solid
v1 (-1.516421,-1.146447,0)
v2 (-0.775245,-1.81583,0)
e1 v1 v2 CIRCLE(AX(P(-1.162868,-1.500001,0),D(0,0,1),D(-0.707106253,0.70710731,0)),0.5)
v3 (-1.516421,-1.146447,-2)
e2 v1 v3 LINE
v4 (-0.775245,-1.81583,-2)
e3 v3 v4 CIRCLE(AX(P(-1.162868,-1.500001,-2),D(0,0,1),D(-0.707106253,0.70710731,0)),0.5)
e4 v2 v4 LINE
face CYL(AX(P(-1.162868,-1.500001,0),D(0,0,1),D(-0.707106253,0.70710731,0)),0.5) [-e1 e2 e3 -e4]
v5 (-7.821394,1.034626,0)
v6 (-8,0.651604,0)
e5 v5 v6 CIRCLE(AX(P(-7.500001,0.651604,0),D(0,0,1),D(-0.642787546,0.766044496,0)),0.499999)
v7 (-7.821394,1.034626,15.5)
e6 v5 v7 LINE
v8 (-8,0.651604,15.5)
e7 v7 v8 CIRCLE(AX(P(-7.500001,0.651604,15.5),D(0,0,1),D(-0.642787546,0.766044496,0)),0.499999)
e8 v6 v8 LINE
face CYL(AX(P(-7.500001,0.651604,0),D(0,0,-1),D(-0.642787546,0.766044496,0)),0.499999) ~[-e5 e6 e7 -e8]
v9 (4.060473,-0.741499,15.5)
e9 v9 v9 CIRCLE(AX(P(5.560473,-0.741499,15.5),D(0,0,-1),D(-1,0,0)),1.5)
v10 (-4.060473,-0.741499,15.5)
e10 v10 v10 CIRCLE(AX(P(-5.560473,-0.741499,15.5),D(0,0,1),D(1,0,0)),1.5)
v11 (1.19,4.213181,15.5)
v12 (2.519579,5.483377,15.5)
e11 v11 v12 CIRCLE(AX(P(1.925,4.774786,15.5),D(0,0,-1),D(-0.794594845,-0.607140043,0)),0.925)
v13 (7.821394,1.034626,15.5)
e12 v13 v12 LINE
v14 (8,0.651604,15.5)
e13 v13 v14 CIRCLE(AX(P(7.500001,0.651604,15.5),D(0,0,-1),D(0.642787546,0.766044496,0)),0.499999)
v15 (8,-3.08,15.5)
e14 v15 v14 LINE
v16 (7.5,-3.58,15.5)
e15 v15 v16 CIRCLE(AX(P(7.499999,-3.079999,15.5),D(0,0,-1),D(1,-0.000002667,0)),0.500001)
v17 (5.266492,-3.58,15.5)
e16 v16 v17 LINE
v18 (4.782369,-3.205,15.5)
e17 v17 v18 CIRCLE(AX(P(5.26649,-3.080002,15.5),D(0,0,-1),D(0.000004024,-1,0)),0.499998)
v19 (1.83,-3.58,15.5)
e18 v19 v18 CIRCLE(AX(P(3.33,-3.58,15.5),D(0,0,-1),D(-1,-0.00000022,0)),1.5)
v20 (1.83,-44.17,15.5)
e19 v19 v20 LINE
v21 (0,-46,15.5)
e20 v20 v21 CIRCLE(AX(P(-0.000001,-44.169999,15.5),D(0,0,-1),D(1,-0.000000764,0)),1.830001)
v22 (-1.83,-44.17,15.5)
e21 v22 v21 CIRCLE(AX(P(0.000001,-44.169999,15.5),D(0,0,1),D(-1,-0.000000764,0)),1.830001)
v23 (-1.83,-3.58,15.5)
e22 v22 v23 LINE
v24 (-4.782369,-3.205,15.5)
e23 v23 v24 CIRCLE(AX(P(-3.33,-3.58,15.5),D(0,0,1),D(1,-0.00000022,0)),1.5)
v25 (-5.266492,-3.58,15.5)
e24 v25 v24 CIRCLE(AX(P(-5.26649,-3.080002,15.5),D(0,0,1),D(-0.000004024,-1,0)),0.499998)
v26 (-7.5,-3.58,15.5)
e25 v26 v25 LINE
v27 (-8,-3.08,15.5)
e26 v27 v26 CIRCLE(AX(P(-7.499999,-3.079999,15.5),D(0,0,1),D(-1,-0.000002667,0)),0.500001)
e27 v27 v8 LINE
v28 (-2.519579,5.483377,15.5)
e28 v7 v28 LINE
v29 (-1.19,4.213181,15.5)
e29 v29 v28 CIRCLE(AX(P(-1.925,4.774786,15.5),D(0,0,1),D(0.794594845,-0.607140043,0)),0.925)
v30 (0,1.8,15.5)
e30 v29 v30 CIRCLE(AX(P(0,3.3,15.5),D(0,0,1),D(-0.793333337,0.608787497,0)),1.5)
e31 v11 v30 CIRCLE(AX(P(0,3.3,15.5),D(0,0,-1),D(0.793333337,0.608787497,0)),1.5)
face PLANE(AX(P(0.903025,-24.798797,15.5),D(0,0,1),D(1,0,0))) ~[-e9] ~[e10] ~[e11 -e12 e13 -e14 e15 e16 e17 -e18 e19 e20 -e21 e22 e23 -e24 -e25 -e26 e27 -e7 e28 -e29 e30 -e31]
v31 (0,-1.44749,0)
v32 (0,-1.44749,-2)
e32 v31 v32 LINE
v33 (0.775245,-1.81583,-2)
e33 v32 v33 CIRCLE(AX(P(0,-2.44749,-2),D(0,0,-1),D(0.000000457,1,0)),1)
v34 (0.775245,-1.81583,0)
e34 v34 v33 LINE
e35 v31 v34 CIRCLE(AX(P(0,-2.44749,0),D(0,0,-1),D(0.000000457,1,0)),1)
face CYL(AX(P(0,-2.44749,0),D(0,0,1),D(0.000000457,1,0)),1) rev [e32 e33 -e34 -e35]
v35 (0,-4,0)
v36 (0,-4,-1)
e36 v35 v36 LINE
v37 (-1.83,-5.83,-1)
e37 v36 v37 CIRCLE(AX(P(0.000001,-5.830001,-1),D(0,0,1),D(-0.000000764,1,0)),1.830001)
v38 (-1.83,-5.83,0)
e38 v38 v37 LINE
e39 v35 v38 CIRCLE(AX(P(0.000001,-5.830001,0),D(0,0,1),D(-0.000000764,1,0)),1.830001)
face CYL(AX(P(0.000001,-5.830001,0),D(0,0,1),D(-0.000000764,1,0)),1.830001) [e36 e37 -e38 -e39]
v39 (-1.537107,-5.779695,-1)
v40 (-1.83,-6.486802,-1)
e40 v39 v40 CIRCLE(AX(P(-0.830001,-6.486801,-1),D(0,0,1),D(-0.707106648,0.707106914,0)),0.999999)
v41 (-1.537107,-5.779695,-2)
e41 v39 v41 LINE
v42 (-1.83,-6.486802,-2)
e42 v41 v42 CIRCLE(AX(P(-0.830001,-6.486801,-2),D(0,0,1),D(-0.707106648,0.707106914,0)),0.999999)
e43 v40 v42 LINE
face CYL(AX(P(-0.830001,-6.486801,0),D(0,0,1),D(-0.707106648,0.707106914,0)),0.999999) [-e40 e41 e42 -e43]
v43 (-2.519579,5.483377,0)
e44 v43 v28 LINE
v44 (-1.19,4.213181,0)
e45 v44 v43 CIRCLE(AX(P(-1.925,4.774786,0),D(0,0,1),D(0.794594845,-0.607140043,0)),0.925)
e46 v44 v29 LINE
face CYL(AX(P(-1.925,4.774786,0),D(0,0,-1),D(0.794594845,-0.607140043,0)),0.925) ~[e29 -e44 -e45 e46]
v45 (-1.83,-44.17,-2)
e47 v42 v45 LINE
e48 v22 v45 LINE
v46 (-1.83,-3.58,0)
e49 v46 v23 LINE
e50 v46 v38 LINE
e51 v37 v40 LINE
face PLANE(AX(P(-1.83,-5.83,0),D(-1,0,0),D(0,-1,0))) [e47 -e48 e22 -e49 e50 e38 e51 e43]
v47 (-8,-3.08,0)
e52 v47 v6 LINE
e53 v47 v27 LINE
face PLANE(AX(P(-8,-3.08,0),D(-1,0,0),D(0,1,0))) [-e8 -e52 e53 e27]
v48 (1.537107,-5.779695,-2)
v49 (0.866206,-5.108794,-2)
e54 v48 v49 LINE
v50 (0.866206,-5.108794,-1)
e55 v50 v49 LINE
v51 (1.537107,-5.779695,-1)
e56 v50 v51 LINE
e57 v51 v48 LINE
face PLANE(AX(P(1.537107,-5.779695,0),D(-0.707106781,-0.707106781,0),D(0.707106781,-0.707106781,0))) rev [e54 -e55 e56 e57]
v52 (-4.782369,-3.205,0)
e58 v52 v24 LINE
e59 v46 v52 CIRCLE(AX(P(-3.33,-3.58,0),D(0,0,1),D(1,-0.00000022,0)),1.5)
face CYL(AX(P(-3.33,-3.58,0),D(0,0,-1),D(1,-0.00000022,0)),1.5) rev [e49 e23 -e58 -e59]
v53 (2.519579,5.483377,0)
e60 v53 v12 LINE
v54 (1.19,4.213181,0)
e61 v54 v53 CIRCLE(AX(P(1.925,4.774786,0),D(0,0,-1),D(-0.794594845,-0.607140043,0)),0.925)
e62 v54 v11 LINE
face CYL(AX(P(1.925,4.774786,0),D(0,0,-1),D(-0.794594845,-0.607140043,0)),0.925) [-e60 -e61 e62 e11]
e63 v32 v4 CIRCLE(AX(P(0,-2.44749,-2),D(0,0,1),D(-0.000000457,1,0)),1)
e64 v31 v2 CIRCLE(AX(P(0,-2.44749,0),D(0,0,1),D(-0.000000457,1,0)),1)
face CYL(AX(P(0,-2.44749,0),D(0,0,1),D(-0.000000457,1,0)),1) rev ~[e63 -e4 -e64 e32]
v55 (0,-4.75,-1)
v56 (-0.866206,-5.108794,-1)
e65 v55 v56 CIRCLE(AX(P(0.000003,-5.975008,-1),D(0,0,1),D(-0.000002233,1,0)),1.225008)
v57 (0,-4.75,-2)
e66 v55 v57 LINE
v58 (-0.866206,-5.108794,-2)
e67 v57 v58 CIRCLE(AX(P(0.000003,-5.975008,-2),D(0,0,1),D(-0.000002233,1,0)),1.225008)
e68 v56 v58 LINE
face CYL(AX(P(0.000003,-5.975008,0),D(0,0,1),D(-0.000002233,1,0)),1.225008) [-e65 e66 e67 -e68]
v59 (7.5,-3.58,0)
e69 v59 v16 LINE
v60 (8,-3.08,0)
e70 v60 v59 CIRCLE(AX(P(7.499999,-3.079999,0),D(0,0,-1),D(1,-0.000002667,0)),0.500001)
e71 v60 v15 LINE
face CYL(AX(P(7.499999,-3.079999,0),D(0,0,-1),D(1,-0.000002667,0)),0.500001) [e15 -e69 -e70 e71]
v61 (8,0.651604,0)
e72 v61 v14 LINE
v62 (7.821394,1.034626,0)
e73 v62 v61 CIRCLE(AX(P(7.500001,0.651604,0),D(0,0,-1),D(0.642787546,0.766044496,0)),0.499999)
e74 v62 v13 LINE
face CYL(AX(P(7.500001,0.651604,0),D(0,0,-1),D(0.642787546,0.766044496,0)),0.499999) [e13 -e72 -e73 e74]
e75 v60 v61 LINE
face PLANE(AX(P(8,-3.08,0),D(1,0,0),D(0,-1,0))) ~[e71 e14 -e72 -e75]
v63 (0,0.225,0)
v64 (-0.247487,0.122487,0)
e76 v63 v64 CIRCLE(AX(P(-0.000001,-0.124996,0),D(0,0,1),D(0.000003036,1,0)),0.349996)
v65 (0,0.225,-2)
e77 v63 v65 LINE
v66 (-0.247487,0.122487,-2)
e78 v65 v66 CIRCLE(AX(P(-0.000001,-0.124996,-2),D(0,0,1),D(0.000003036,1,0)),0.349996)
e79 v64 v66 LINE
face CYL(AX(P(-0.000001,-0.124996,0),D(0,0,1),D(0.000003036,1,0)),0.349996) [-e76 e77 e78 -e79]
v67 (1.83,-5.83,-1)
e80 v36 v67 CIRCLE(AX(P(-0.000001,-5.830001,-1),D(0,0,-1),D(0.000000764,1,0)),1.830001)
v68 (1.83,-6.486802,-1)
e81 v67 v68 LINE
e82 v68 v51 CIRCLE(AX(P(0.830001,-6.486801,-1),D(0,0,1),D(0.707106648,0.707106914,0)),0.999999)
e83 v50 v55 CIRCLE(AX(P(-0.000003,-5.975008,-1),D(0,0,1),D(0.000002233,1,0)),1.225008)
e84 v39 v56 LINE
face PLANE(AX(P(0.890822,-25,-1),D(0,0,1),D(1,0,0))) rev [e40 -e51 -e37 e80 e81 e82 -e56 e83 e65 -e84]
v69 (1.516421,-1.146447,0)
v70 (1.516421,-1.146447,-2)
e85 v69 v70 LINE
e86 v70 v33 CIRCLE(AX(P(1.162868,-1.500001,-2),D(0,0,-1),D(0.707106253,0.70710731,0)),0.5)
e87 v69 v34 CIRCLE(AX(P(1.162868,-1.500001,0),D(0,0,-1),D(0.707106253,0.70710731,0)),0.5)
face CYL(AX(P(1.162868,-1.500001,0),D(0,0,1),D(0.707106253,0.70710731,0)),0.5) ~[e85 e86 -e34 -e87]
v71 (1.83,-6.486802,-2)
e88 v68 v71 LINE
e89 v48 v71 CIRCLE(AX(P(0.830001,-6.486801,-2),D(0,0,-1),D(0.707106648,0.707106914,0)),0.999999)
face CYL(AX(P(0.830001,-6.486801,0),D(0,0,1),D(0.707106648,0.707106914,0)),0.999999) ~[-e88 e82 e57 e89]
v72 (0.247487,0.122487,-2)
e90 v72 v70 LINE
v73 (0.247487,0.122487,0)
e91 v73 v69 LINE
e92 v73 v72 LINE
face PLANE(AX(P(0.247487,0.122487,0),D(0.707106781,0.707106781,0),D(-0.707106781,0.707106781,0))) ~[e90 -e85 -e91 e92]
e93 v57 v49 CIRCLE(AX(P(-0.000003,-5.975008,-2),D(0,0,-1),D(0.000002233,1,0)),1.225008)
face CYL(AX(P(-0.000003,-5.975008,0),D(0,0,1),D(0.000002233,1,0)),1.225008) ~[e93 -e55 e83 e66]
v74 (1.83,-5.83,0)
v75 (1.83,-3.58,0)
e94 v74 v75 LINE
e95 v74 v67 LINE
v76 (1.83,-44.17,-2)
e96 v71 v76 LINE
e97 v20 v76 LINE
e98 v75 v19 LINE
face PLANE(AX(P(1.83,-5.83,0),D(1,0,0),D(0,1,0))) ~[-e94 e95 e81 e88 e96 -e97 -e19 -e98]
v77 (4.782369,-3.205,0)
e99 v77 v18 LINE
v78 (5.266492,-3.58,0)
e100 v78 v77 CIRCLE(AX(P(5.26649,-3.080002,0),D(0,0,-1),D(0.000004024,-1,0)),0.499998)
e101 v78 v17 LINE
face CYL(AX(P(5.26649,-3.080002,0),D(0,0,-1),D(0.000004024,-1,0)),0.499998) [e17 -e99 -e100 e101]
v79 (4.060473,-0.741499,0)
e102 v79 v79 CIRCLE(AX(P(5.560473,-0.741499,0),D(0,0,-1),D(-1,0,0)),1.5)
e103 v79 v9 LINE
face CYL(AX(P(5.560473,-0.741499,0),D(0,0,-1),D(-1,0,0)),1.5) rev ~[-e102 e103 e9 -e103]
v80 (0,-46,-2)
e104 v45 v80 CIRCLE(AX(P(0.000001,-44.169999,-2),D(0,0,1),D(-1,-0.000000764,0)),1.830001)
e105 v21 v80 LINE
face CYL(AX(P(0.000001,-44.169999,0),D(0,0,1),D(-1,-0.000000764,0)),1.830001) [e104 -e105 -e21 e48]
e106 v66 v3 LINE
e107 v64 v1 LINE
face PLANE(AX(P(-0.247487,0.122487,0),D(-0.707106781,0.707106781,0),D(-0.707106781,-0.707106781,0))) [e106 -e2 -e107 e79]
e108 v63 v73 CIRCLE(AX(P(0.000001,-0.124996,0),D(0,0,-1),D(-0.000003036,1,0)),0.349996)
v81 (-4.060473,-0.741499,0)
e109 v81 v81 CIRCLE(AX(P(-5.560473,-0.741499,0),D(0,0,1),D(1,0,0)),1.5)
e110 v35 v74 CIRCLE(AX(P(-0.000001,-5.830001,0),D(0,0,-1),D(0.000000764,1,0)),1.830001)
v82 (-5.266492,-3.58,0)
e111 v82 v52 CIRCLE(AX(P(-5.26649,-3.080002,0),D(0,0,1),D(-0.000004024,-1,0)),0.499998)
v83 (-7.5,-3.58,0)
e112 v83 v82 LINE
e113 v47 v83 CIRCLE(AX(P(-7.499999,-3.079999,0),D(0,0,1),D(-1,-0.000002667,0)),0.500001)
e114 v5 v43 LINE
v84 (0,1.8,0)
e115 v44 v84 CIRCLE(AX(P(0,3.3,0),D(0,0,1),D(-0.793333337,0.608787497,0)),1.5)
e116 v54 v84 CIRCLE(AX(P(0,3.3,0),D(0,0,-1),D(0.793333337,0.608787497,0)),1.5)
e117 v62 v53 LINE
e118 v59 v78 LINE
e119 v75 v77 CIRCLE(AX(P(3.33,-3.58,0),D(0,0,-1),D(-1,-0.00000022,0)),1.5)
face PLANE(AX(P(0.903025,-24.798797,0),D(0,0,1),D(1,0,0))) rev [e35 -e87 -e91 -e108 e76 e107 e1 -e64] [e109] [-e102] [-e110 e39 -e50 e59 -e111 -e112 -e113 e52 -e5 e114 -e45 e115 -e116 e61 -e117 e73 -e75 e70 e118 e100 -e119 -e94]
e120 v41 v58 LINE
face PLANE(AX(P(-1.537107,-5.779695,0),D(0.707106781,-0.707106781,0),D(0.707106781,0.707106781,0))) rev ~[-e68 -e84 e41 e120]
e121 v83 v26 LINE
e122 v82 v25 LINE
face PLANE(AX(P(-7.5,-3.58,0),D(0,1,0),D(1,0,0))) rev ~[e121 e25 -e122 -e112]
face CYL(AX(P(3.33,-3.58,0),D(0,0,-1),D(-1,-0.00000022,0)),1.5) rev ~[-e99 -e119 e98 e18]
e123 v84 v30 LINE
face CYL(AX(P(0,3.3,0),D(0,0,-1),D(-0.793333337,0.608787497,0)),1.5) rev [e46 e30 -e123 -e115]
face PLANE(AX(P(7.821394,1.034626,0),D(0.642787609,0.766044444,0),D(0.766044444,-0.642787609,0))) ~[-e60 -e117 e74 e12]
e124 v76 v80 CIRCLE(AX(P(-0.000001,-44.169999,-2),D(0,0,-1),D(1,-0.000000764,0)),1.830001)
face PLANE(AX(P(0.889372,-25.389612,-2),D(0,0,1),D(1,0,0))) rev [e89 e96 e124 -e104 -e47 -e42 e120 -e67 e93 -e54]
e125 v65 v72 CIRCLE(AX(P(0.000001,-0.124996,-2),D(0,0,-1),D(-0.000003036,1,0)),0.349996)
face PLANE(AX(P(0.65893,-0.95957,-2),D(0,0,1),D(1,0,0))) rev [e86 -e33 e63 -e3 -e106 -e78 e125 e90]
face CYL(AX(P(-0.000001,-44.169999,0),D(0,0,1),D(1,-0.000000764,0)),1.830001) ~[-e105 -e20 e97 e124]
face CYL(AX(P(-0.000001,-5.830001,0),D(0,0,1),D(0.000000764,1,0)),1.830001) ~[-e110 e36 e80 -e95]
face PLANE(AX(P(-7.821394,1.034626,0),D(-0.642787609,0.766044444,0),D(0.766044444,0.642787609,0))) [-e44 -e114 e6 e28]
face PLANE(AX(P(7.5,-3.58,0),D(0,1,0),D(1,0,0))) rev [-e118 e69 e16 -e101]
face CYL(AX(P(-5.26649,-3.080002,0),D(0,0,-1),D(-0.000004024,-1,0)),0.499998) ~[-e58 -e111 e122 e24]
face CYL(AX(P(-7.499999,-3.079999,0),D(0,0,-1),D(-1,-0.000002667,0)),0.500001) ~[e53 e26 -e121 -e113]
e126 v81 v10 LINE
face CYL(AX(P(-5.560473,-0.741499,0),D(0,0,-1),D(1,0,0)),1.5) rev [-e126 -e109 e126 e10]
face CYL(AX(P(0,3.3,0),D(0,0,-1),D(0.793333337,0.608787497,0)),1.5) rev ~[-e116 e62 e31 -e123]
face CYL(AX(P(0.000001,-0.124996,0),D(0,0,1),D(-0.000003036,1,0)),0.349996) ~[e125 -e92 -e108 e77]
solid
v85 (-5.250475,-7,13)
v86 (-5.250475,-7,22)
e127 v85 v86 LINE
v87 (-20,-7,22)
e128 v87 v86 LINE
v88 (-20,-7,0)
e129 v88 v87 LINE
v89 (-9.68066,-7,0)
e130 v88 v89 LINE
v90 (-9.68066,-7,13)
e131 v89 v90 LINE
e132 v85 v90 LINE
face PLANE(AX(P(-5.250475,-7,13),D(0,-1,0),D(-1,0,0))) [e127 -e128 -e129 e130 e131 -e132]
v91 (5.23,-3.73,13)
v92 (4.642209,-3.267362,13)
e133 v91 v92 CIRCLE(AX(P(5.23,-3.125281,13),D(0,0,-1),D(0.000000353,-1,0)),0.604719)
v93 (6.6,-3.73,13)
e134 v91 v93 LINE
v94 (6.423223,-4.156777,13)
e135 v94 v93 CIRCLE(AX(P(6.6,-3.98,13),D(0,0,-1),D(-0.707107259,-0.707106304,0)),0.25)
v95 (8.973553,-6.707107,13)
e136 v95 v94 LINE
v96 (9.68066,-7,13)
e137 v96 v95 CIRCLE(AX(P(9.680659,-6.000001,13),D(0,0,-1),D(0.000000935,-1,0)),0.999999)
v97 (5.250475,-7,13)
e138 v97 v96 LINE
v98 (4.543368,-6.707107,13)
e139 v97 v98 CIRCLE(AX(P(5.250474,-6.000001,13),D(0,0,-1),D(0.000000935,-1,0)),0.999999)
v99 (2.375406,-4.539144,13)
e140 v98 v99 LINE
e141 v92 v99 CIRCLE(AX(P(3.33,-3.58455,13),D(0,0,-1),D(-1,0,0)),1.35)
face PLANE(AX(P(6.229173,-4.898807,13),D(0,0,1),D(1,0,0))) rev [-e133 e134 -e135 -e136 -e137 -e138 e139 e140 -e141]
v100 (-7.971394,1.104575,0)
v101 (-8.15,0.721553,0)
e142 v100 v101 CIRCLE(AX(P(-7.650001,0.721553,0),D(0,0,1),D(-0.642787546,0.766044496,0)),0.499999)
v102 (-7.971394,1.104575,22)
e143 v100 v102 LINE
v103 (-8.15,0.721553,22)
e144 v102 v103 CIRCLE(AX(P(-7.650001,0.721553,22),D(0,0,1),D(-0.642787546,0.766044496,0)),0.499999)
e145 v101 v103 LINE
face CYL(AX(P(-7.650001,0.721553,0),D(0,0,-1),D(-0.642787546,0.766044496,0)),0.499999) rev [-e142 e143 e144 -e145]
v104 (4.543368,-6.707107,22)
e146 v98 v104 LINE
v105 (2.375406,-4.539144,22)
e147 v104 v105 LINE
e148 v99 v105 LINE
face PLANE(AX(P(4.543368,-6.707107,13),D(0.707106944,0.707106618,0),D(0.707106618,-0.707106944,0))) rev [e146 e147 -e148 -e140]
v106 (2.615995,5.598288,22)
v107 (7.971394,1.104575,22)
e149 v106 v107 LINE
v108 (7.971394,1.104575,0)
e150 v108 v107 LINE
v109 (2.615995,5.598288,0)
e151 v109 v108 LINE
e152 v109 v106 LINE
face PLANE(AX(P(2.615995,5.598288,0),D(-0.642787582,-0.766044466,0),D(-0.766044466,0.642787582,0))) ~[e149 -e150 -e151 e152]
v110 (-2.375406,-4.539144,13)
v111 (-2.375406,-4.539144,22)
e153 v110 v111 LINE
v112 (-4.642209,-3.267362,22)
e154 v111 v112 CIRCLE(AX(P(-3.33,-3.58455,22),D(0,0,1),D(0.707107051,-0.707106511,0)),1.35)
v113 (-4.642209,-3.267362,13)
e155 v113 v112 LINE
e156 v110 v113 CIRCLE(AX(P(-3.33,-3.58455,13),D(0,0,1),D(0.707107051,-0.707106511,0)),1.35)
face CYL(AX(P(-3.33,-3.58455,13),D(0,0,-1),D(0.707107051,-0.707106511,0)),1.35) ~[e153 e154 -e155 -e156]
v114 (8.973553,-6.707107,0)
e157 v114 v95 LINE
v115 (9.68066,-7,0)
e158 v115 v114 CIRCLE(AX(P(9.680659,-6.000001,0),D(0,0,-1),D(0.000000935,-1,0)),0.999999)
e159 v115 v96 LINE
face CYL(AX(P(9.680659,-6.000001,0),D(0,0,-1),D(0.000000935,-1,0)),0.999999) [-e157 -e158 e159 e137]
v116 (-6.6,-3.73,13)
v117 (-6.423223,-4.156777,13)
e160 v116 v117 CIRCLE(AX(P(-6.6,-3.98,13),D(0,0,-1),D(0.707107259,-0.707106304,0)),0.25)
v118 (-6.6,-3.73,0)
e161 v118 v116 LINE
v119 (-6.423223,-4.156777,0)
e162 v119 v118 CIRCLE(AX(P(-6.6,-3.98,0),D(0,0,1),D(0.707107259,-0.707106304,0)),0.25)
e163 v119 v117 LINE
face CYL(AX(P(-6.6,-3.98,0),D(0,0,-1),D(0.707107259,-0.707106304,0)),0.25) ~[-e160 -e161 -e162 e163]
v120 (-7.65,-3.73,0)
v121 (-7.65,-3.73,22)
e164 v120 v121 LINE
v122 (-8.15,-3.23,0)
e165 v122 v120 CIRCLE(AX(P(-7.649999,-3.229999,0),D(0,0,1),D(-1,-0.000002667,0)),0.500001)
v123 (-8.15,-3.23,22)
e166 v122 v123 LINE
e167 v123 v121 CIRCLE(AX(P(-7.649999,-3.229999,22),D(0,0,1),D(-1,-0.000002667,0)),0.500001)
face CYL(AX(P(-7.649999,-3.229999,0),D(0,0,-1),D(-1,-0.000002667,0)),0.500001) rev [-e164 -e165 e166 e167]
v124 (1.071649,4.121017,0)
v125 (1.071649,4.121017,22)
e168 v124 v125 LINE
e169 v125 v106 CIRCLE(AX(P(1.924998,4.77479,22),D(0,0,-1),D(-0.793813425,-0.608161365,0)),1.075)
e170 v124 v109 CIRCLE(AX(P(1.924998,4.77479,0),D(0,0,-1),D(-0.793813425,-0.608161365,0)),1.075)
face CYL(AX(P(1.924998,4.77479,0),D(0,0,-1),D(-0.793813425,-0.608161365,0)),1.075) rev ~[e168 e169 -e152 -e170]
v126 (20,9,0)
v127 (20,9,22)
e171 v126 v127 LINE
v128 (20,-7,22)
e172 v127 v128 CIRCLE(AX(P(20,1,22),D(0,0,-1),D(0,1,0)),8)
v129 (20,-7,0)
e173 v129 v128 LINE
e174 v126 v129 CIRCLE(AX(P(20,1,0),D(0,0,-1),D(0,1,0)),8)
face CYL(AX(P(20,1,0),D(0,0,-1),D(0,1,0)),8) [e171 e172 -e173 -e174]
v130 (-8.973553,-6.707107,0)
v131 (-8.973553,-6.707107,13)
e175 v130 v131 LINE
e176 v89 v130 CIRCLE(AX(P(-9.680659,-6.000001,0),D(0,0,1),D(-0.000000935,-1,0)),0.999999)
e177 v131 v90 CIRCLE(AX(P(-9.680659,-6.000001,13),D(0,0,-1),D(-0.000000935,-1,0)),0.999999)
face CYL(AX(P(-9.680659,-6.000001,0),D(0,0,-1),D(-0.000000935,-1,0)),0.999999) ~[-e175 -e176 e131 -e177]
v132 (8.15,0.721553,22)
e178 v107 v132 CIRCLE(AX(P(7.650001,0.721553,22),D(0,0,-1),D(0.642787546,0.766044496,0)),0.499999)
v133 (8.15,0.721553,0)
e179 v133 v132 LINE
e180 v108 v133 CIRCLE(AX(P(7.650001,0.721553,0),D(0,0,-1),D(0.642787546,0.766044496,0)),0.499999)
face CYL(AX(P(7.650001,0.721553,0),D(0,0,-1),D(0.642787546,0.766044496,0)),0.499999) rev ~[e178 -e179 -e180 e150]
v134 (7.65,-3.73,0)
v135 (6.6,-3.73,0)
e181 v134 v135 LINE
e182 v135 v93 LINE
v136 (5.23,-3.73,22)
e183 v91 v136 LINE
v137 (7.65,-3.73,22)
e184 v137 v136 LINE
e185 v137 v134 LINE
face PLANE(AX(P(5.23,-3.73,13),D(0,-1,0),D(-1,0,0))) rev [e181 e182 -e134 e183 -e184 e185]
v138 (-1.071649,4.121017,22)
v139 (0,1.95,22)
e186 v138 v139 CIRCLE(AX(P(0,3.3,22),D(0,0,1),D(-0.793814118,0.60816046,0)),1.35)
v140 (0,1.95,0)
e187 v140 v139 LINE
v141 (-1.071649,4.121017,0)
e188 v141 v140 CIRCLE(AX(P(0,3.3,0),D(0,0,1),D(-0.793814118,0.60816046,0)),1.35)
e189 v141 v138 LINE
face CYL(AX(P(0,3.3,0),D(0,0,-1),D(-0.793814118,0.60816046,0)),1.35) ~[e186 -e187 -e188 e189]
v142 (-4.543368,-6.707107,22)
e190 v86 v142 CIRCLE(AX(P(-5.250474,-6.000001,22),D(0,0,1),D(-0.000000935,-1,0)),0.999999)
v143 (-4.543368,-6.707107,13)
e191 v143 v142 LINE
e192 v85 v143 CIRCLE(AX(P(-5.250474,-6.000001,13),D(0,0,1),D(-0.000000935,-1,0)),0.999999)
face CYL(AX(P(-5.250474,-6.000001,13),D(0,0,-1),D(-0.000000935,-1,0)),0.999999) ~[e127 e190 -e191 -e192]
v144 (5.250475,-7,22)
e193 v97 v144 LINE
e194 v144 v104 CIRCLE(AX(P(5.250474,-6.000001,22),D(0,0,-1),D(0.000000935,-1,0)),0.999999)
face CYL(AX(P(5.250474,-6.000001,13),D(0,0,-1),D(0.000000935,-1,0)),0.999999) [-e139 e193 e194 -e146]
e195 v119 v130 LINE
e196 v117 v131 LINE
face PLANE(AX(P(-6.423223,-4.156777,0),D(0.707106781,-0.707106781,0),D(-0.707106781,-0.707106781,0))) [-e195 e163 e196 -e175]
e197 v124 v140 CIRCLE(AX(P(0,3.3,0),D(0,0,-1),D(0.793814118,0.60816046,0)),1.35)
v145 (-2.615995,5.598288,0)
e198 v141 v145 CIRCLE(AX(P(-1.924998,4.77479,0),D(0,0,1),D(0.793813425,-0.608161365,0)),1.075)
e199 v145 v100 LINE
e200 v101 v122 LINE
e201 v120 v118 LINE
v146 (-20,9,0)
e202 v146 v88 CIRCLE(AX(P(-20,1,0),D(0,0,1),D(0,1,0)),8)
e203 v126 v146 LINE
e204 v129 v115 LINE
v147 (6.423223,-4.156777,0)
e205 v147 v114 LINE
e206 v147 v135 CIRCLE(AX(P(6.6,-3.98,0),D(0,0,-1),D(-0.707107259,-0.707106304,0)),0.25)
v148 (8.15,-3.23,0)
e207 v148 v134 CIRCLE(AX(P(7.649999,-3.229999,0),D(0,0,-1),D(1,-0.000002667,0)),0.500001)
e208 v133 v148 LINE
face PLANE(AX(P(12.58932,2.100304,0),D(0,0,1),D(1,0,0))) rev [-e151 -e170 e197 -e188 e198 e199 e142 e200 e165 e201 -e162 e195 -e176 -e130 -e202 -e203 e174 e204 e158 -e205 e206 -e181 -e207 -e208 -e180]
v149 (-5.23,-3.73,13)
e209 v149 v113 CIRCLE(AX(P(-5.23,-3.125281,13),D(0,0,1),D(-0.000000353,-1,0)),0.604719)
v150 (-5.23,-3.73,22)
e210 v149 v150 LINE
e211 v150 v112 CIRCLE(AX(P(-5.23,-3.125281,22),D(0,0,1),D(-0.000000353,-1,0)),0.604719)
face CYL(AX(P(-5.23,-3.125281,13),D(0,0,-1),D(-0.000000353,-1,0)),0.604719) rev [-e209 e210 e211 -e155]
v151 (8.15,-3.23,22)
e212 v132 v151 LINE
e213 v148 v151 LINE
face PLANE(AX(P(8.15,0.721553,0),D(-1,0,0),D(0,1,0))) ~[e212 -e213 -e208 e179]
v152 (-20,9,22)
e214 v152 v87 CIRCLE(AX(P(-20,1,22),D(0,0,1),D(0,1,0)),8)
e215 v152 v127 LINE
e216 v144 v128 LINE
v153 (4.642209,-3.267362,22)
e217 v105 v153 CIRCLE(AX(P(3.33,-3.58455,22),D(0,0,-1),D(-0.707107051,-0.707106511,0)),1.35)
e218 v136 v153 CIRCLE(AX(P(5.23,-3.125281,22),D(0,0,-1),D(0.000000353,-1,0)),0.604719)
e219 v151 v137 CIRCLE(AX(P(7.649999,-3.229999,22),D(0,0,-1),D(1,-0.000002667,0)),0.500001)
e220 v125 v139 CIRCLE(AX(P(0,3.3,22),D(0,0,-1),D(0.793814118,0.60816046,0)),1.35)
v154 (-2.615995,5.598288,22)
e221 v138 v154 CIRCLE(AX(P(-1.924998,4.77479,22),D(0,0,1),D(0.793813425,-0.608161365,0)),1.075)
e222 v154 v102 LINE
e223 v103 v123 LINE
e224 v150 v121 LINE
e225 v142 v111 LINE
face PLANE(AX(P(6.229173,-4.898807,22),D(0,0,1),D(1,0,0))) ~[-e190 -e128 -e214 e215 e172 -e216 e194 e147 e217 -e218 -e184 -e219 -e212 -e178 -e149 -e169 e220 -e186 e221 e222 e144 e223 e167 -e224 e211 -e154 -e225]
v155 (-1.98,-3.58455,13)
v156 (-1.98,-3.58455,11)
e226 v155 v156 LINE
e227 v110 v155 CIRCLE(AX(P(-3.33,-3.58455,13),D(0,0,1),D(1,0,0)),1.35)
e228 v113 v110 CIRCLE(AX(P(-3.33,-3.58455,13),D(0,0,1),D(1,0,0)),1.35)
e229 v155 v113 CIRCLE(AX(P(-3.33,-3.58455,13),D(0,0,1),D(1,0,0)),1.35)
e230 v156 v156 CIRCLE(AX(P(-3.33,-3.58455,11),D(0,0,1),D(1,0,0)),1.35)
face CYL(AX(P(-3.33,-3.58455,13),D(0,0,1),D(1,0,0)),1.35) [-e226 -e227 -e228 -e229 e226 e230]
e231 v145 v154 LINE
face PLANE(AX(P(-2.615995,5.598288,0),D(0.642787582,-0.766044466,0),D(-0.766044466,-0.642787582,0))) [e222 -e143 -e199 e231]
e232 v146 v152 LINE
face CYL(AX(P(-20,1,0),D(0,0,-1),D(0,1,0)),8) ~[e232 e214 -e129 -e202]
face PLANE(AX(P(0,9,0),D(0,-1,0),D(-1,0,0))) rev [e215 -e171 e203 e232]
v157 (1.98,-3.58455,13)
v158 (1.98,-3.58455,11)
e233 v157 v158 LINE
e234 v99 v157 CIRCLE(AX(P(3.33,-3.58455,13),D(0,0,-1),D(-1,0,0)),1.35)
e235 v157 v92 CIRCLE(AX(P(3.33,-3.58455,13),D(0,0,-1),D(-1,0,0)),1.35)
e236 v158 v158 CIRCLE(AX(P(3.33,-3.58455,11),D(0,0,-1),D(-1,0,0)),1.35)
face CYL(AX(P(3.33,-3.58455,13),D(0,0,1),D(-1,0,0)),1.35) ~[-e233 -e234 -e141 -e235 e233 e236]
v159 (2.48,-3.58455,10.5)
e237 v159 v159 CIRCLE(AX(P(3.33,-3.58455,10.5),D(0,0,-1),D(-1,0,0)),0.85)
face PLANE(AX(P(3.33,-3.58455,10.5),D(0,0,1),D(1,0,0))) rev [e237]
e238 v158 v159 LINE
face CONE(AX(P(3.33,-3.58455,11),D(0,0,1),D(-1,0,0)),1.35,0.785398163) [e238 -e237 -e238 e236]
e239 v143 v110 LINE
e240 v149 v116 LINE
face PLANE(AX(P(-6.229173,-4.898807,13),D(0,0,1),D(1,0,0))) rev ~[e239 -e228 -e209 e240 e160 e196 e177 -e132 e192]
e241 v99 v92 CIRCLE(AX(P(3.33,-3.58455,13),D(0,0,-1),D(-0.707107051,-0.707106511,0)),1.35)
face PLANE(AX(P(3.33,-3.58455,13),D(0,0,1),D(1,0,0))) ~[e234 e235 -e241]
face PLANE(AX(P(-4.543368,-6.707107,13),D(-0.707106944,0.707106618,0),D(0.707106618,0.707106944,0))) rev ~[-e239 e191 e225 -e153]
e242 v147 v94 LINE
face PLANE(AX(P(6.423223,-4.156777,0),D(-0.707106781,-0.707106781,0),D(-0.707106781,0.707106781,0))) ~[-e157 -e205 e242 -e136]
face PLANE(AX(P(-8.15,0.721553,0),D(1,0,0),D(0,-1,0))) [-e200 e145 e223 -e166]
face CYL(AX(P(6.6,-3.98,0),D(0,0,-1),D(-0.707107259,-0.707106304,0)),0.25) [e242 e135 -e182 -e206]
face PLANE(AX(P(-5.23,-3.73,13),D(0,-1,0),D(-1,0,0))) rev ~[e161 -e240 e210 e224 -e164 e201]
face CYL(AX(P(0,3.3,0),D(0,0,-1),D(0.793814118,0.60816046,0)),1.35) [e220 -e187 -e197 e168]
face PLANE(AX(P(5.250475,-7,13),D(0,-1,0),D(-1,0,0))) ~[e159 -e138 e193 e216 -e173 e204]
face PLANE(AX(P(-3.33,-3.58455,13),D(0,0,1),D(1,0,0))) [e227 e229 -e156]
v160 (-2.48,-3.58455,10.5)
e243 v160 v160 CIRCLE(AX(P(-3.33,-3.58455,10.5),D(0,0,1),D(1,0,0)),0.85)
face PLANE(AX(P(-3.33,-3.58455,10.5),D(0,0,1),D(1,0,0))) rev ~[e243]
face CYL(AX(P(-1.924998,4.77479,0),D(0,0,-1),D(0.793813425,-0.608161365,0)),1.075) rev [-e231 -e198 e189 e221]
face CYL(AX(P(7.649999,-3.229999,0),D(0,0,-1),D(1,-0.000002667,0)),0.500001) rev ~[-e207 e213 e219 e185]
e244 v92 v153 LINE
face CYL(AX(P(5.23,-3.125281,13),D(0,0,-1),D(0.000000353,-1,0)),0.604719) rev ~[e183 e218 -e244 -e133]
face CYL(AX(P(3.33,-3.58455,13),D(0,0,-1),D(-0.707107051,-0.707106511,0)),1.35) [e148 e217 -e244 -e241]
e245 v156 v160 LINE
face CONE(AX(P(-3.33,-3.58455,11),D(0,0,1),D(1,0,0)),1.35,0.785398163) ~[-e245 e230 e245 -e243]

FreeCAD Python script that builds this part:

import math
import FreeCAD as App
import Part
import Sketcher
from FreeCAD import Vector
Q = App.Units.Quantity


def edges_at(feature, points):
    """Names of the edges that pass closest to the given points."""
    edges = feature.Shape.Edges
    near = lambda p: min(range(len(edges)), key=lambda i: edges[i].distToShape(Part.Vertex(*p))[0])
    return sorted({f"Edge{near(p) + 1}" for p in points})

doc = App.newDocument("Part")
body = doc.addObject("PartDesign::Body", "Body")

sketch1 = body.newObject("Sketcher::SketchObject", "Sketch")
sketch1.AttachmentSupport = (doc.getObject("XY_Plane"), [""])
sketch1.MapMode = "FlatFace"
sketch1.addGeometry(Part.ArcOfCircle(Part.Circle(Vector(-3.33, -3.58, 0), Vector(0, 0, 1), 1.5), math.radians(0), math.radians(166)), False)
sketch1.addGeometry(Part.LineSegment(Vector(-1.83, -3.58, 0), Vector(-1.83, -4, 0)), False)
sketch1.addGeometry(Part.LineSegment(Vector(-1.83, -4, 0), Vector(0, -4, 0)), False)
sketch1.addGeometry(Part.LineSegment(Vector(0, -4, 0), Vector(0, 1.8, 0)), False)
sketch1.addGeometry(Part.ArcOfCircle(Part.Circle(Vector(0, 3.3, 0), Vector(0, 0, 1), 1.5), math.radians(142), math.radians(270)), False)
sketch1.addGeometry(Part.ArcOfCircle(Part.Circle(Vector(-1.93, 4.77, 0), Vector(0, 0, 1), 0.93), math.radians(-37), math.radians(130)), False)
sketch1.addGeometry(Part.LineSegment(Vector(-2.52, 5.48, 0), Vector(-7.82, 1.03, 0)), False)
sketch1.addGeometry(Part.ArcOfCircle(Part.Circle(Vector(-7.5, 0.65, 0), Vector(0, 0, 1), 0.5), math.radians(130), math.radians(180)), False)
sketch1.addGeometry(Part.LineSegment(Vector(-8, 0.65, 0), Vector(-8, -3.08, 0)), False)
sketch1.addGeometry(Part.ArcOfCircle(Part.Circle(Vector(-7.5, -3.08, 0), Vector(0, 0, 1), 0.5), math.radians(-180), math.radians(-90)), False)
sketch1.addGeometry(Part.LineSegment(Vector(-7.5, -3.58, 0), Vector(-5.27, -3.58, 0)), False)
sketch1.addGeometry(Part.ArcOfCircle(Part.Circle(Vector(-5.27, -3.08, 0), Vector(0, 0, 1), 0.5), math.radians(-90), math.radians(-14)), False)
sketch1.addGeometry(Part.Circle(Vector(-5.56, -0.74, 0), Vector(0, 0, 1), 1.5), False)
sketch1.addConstraint(Sketcher.Constraint("Tangent", 0, 1, 1, 1))
sketch1.addConstraint(Sketcher.Constraint("Coincident", 1, 2, 2, 1))
sketch1.addConstraint(Sketcher.Constraint("Coincident", 2, 2, 3, 1))
sketch1.addConstraint(Sketcher.Constraint("Coincident", 3, 2, 4, 2))
sketch1.addConstraint(Sketcher.Constraint("Coincident", 4, 1, 5, 1))
sketch1.addConstraint(Sketcher.Constraint("Tangent", 5, 2, 6, 1))
sketch1.addConstraint(Sketcher.Constraint("Tangent", 6, 2, 7, 1))
sketch1.addConstraint(Sketcher.Constraint("Tangent", 7, 2, 8, 1))
sketch1.addConstraint(Sketcher.Constraint("Coincident", 8, 2, 9, 1))
sketch1.addConstraint(Sketcher.Constraint("Coincident", 9, 2, 10, 1))
sketch1.addConstraint(Sketcher.Constraint("Coincident", 10, 2, 11, 1))
sketch1.addConstraint(Sketcher.Constraint("Coincident", 11, 2, 0, 2))
sketch1.addConstraint(Sketcher.Constraint("Vertical", 1))
sketch1.addConstraint(Sketcher.Constraint("Horizontal", 2))
sketch1.addConstraint(Sketcher.Constraint("Vertical", 3))
sketch1.addConstraint(Sketcher.Constraint("Vertical", 8))
sketch1.addConstraint(Sketcher.Constraint("Horizontal", 10))
sketch1.addConstraint(Sketcher.Constraint("Equal", 0, 4))
sketch1.addConstraint(Sketcher.Constraint("Equal", 7, 9))
sketch1.addConstraint(Sketcher.Constraint("Equal", 7, 11))
sketch1.addConstraint(Sketcher.Constraint("Equal", 4, 12))
sketch1.addConstraint(Sketcher.Constraint("PointOnObject", 4, 3, -2))
sketch1.addConstraint(Sketcher.Constraint("PointOnObject", 2, 2, -2))
sketch1.addConstraint(Sketcher.Constraint("Horizontal", 9, 3, 8, 2))
sketch1.addConstraint(Sketcher.Constraint("Horizontal", 0, 1, 9, 2))
sketch1.addConstraint(Sketcher.Constraint("Vertical", 7, 3, 9, 2))
sketch1.addConstraint(Sketcher.Constraint("Diameter", 12, Q("3 mm")))
sketch1.addConstraint(Sketcher.Constraint("Radius", 7, Q("0.499999 mm")))
sketch1.addConstraint(Sketcher.Constraint("Angle", 6, Q("-140 deg")))
sketch1.addConstraint(Sketcher.Constraint("DistanceY", 3, 1, 3, 2, Q("5.8 mm")))
sketch1.addConstraint(Sketcher.Constraint("DistanceY", 1, 2, -1, 1, Q("4 mm")))
sketch1.addConstraint(Sketcher.Constraint("DistanceX", 7, 2, -1, 1, Q("8 mm")))
sketch1.addConstraint(Sketcher.Constraint("Radius", 5, Q("0.925 mm")))
sketch1.addConstraint(Sketcher.Constraint("DistanceX", 2, 1, 2, 2, Q("1.83 mm")))
sketch1.addConstraint(Sketcher.Constraint("DistanceY", 1, 2, 1, 1, Q("0.42 mm")))
sketch1.addConstraint(Sketcher.Constraint("DistanceX", 4, 1, -1, 1, Q("1.19 mm")))
sketch1.addConstraint(Sketcher.Constraint("DistanceX", 5, 3, -1, 1, Q("1.925 mm")))
sketch1.addConstraint(Sketcher.Constraint("DistanceY", 11, 2, -1, 1, Q("3.205 mm")))
sketch1.addConstraint(Sketcher.Constraint("DistanceY", 12, 3, -1, 1, Q("0.741499 mm")))
sketch1.addConstraint(Sketcher.Constraint("DistanceX", 10, 1, 10, 2, Q("2.233508 mm")))
sketch1.addConstraint(Sketcher.Constraint("DistanceX", 6, 2, 12, 3, Q("2.260921 mm")))
pad1 = body.newObject("PartDesign::Pad", "Pad")
pad1.Profile = sketch1
pad1.Length = 15.5

sketch2 = body.newObject("Sketcher::SketchObject", "Sketch001")
sketch2.AttachmentSupport = (doc.getObject("XY_Plane"), [""])
sketch2.MapMode = "FlatFace"
sketch2.addGeometry(Part.ArcOfCircle(Part.Circle(Vector(0, -0.12, 0), Vector(0, 0, 1), 0.35), math.radians(90), math.radians(135)), False)
sketch2.addGeometry(Part.LineSegment(Vector(-0.25, 0.12, 0), Vector(-1.52, -1.15, 0)), False)
sketch2.addGeometry(Part.ArcOfCircle(Part.Circle(Vector(-1.16, -1.5, 0), Vector(0, 0, 1), 0.5), math.radians(135), math.radians(321)), False)
sketch2.addGeometry(Part.ArcOfCircle(Part.Circle(Vector(0, -2.45, 0), Vector(0, 0, 1), 1), math.radians(90), math.radians(141)), False)
sketch2.addGeometry(Part.LineSegment(Vector(0, -1.45, 0), Vector(0, 0.23, 0)), False)
sketch2.addConstraint(Sketcher.Constraint("Coincident", 0, 2, 1, 1))
sketch2.addConstraint(Sketcher.Constraint("Tangent", 1, 2, 2, 1))
sketch2.addConstraint(Sketcher.Constraint("Tangent", 2, 2, 3, 2))
sketch2.addConstraint(Sketcher.Constraint("Coincident", 3, 1, 4, 1))
sketch2.addConstraint(Sketcher.Constraint("Coincident", 4, 2, 0, 1))
sketch2.addConstraint(Sketcher.Constraint("Vertical", 4))
sketch2.addConstraint(Sketcher.Constraint("PointOnObject", 0, 3, -2))
sketch2.addConstraint(Sketcher.Constraint("PointOnObject", 3, 3, -2))
sketch2.addConstraint(Sketcher.Constraint("PointOnObject", 3, 1, -2))
sketch2.addConstraint(Sketcher.Constraint("Radius", 3, Q("1 mm")))
sketch2.addConstraint(Sketcher.Constraint("Radius", 2, Q("0.5 mm")))
sketch2.addConstraint(Sketcher.Constraint("Angle", 1, Q("-135 deg")))
sketch2.addConstraint(Sketcher.Constraint("DistanceY", 2, 3, -1, 1, Q("1.500001 mm")))
sketch2.addConstraint(Sketcher.Constraint("DistanceY", -1, 1, 4, 2, Q("0.225 mm")))
sketch2.addConstraint(Sketcher.Constraint("Radius", 0, Q("0.349996 mm")))
sketch2.addConstraint(Sketcher.Constraint("DistanceX", 2, 3, 0, 2, Q("0.915381 mm")))
pad2 = body.newObject("PartDesign::Pad", "Pad001")
pad2.Profile = sketch2
pad2.Length = 2
pad2.Reversed = True
doc.recompute()

mirrored = body.newObject("PartDesign::Mirrored", "Mirrored")
mirrored.Originals = [pad1, pad2]
mirrored.MirrorPlane = (doc.getObject("YZ_Plane"), [""])
body.Tip = mirrored

sketch3 = body.newObject("Sketcher::SketchObject", "Sketch002")
sketch3.AttachmentSupport = (doc.getObject("XY_Plane"), [""])
sketch3.MapMode = "FlatFace"
sketch3.addGeometry(Part.LineSegment(Vector(-1.8, -4, 0), Vector(-1.8, -44.2, 0)), False)
sketch3.addGeometry(Part.ArcOfCircle(Part.Circle(Vector(0, -44.2, 0), Vector(0, 0, 1), 1.8), math.radians(-180), math.radians(-90)), False)
sketch3.addGeometry(Part.LineSegment(Vector(0, -46, 0), Vector(0, -4, 0)), False)
sketch3.addGeometry(Part.LineSegment(Vector(0, -4, 0), Vector(-1.8, -4, 0)), False)
sketch3.addConstraint(Sketcher.Constraint("Tangent", 0, 2, 1, 1))
sketch3.addConstraint(Sketcher.Constraint("Coincident", 1, 2, 2, 1))
sketch3.addConstraint(Sketcher.Constraint("Coincident", 2, 2, 3, 1))
sketch3.addConstraint(Sketcher.Constraint("Coincident", 3, 2, 0, 1))
sketch3.addConstraint(Sketcher.Constraint("Vertical", 0))
sketch3.addConstraint(Sketcher.Constraint("Vertical", 2))
sketch3.addConstraint(Sketcher.Constraint("Horizontal", 3))
sketch3.addConstraint(Sketcher.Constraint("PointOnObject", 1, 3, -2))
sketch3.addConstraint(Sketcher.Constraint("PointOnObject", 1, 2, -2))
sketch3.addConstraint(Sketcher.Constraint("DistanceY", 2, 1, 2, 2, Q("42 mm")))
sketch3.addConstraint(Sketcher.Constraint("Radius", 1, Q("1.830001 mm")))
sketch3.addConstraint(Sketcher.Constraint("DistanceY", 1, 2, -1, 1, Q("46 mm")))
pad3 = body.newObject("PartDesign::Pad", "Pad002")
pad3.Profile = sketch3
pad3.Length = 15.5

sketch4 = body.newObject("Sketcher::SketchObject", "Sketch003")
sketch4.AttachmentSupport = (doc.getObject("XY_Plane"), [""])
sketch4.MapMode = "FlatFace"
sketch4.addGeometry(Part.ArcOfCircle(Part.Circle(Vector(0, -5.8, 0), Vector(0, 0, 1), 1.8), math.radians(90), math.radians(180)), False)
sketch4.addGeometry(Part.LineSegment(Vector(-1.8, -5.8, 0), Vector(-1.8, -44.2, 0)), False)
sketch4.addGeometry(Part.ArcOfCircle(Part.Circle(Vector(0, -44.2, 0), Vector(0, 0, 1), 1.8), math.radians(-180), math.radians(-90)), False)
sketch4.addGeometry(Part.LineSegment(Vector(0, -46, 0), Vector(0, -4, 0)), False)
sketch4.addConstraint(Sketcher.Constraint("Tangent", 0, 2, 1, 1))
sketch4.addConstraint(Sketcher.Constraint("Tangent", 1, 2, 2, 1))
sketch4.addConstraint(Sketcher.Constraint("Coincident", 2, 2, 3, 1))
sketch4.addConstraint(Sketcher.Constraint("Coincident", 3, 2, 0, 1))
sketch4.addConstraint(Sketcher.Constraint("Vertical", 1))
sketch4.addConstraint(Sketcher.Constraint("Vertical", 3))
sketch4.addConstraint(Sketcher.Constraint("Equal", 0, 2))
sketch4.addConstraint(Sketcher.Constraint("PointOnObject", 0, 3, -2))
sketch4.addConstraint(Sketcher.Constraint("PointOnObject", 2, 2, -2))
sketch4.addConstraint(Sketcher.Constraint("DistanceY", 3, 1, 3, 2, Q("42 mm")))
sketch4.addConstraint(Sketcher.Constraint("Radius", 0, Q("1.830001 mm")))
sketch4.addConstraint(Sketcher.Constraint("DistanceY", 2, 2, -1, 1, Q("46 mm")))
pad4 = body.newObject("PartDesign::Pad", "Pad003")
pad4.Profile = sketch4
pad4.Length = 1
pad4.Reversed = True

sketch5 = body.newObject("Sketcher::SketchObject", "Sketch004")
sketch5.AttachmentSupport = (doc.getObject("XY_Plane"), [""])
sketch5.MapMode = "FlatFace"
sketch5.addGeometry(Part.ArcOfCircle(Part.Circle(Vector(0, -6, 0), Vector(0, 0, 1), 1.2), math.radians(90), math.radians(135)), False)
sketch5.addGeometry(Part.LineSegment(Vector(-0.9, -5.1, 0), Vector(-1.5, -5.8, 0)), False)
sketch5.addGeometry(Part.ArcOfCircle(Part.Circle(Vector(-0.8, -6.5, 0), Vector(0, 0, 1), 1), math.radians(135), math.radians(180)), False)
sketch5.addGeometry(Part.LineSegment(Vector(-1.8, -6.5, 0), Vector(-1.8, -44.2, 0)), False)
sketch5.addGeometry(Part.ArcOfCircle(Part.Circle(Vector(0, -44.2, 0), Vector(0, 0, 1), 1.8), math.radians(-180), math.radians(-90)), False)
sketch5.addGeometry(Part.LineSegment(Vector(0, -46, 0), Vector(0, -4.8, 0)), False)
sketch5.addConstraint(Sketcher.Constraint("Coincident", 0, 2, 1, 1))
sketch5.addConstraint(Sketcher.Constraint("Tangent", 1, 2, 2, 1))
sketch5.addConstraint(Sketcher.Constraint("Tangent", 2, 2, 3, 1))
sketch5.addConstraint(Sketcher.Constraint("Tangent", 3, 2, 4, 1))
sketch5.addConstraint(Sketcher.Constraint("Coincident", 4, 2, 5, 1))
sketch5.addConstraint(Sketcher.Constraint("Coincident", 5, 2, 0, 1))
sketch5.addConstraint(Sketcher.Constraint("Vertical", 3))
sketch5.addConstraint(Sketcher.Constraint("Vertical", 5))
sketch5.addConstraint(Sketcher.Constraint("PointOnObject", 4, 3, -2))
sketch5.addConstraint(Sketcher.Constraint("PointOnObject", 4, 2, -2))
sketch5.addConstraint(Sketcher.Constraint("Vertical", 0, 3, 4, 3))
sketch5.addConstraint(Sketcher.Constraint("Radius", 2, Q("0.999999 mm")))
sketch5.addConstraint(Sketcher.Constraint("Angle", 1, Q("-135 deg")))
sketch5.addConstraint(Sketcher.Constraint("Radius", 4, Q("1.830001 mm")))
sketch5.addConstraint(Sketcher.Constraint("DistanceY", 4, 2, -1, 1, Q("46 mm")))
sketch5.addConstraint(Sketcher.Constraint("DistanceY", 5, 1, 5, 2, Q("41.25 mm")))
sketch5.addConstraint(Sketcher.Constraint("DistanceY", 3, 2, 3, 1, Q("37.683198 mm")))
sketch5.addConstraint(Sketcher.Constraint("DistanceX", 1, 2, 0, 2, Q("0.670901 mm")))
pad5 = body.newObject("PartDesign::Pad", "Pad004")
pad5.Profile = sketch5
pad5.Length = 2
pad5.Reversed = True
doc.recompute()

mirrored2 = body.newObject("PartDesign::Mirrored", "Mirrored001")
mirrored2.Originals = [pad3, pad4, pad5]
mirrored2.MirrorPlane = (doc.getObject("YZ_Plane"), [""])
body.Tip = mirrored2
body2 = doc.addObject("PartDesign::Body", "Body001")

sketch6 = body2.newObject("Sketcher::SketchObject", "Sketch005")
sketch6.AttachmentSupport = (doc.getObject("XY_Plane001"), [""])
sketch6.MapMode = "FlatFace"
sketch6.addGeometry(Part.LineSegment(Vector(0, 9, 0), Vector(-20, 9, 0)), False)
sketch6.addGeometry(Part.ArcOfCircle(Part.Circle(Vector(-20, 1, 0), Vector(0, 0, 1), 8), math.radians(90), math.radians(270)), False)
sketch6.addGeometry(Part.LineSegment(Vector(-20, -7, 0), Vector(-9.68, -7, 0)), False)
sketch6.addGeometry(Part.ArcOfCircle(Part.Circle(Vector(-9.68, -6, 0), Vector(0, 0, 1), 1), math.radians(-90), math.radians(-45)), False)
sketch6.addGeometry(Part.LineSegment(Vector(-8.97, -6.71, 0), Vector(-6.42, -4.16, 0)), False)
sketch6.addGeometry(Part.ArcOfCircle(Part.Circle(Vector(-6.6, -3.98, 0), Vector(0, 0, 1), 0.25), math.radians(-45), math.radians(90)), False)
sketch6.addGeometry(Part.LineSegment(Vector(-6.6, -3.73, 0), Vector(-7.65, -3.73, 0)), False)
sketch6.addGeometry(Part.ArcOfCircle(Part.Circle(Vector(-7.65, -3.23, 0), Vector(0, 0, 1), 0.5), math.radians(-180), math.radians(-90)), False)
sketch6.addGeometry(Part.LineSegment(Vector(-8.15, -3.23, 0), Vector(-8.15, 0.72, 0)), False)
sketch6.addGeometry(Part.ArcOfCircle(Part.Circle(Vector(-7.65, 0.72, 0), Vector(0, 0, 1), 0.5), math.radians(130), math.radians(180)), False)
sketch6.addGeometry(Part.LineSegment(Vector(-7.97, 1.1, 0), Vector(-2.62, 5.6, 0)), False)
sketch6.addGeometry(Part.ArcOfCircle(Part.Circle(Vector(-1.92, 4.77, 0), Vector(0, 0, 1), 1.07), math.radians(-37), math.radians(130)), False)
sketch6.addGeometry(Part.ArcOfCircle(Part.Circle(Vector(0, 3.3, 0), Vector(0, 0, 1), 1.35), math.radians(143), math.radians(270)), False)
sketch6.addGeometry(Part.LineSegment(Vector(0, 1.95, 0), Vector(0, 9, 0)), False)
sketch6.addConstraint(Sketcher.Constraint("Tangent", 0, 2, 1, 1))
sketch6.addConstraint(Sketcher.Constraint("Tangent", 1, 2, 2, 1))
sketch6.addConstraint(Sketcher.Constraint("Tangent", 2, 2, 3, 1))
sketch6.addConstraint(Sketcher.Constraint("Tangent", 3, 2, 4, 1))
sketch6.addConstraint(Sketcher.Constraint("Tangent", 4, 2, 5, 1))
sketch6.addConstraint(Sketcher.Constraint("Tangent", 5, 2, 6, 1))
sketch6.addConstraint(Sketcher.Constraint("Coincident", 6, 2, 7, 2))
sketch6.addConstraint(Sketcher.Constraint("Coincident", 7, 1, 8, 1))
sketch6.addConstraint(Sketcher.Constraint("Tangent", 8, 2, 9, 2))
sketch6.addConstraint(Sketcher.Constraint("Tangent", 9, 1, 10, 1))
sketch6.addConstraint(Sketcher.Constraint("Tangent", 10, 2, 11, 2))
sketch6.addConstraint(Sketcher.Constraint("Tangent", 11, 1, 12, 1))
sketch6.addConstraint(Sketcher.Constraint("Coincident", 12, 2, 13, 1))
sketch6.addConstraint(Sketcher.Constraint("Coincident", 13, 2, 0, 1))
sketch6.addConstraint(Sketcher.Constraint("Horizontal", 0))
sketch6.addConstraint(Sketcher.Constraint("Horizontal", 2))
sketch6.addConstraint(Sketcher.Constraint("Horizontal", 6))
sketch6.addConstraint(Sketcher.Constraint("Vertical", 8))
sketch6.addConstraint(Sketcher.Constraint("Vertical", 13))
sketch6.addConstraint(Sketcher.Constraint("Equal", 7, 9))
sketch6.addConstraint(Sketcher.Constraint("PointOnObject", 12, 3, -2))
sketch6.addConstraint(Sketcher.Constraint("PointOnObject", 12, 2, -2))
sketch6.addConstraint(Sketcher.Constraint("Vertical", 9, 3, 6, 2))
sketch6.addConstraint(Sketcher.Constraint("Radius", 1, Q("8 mm")))
sketch6.addConstraint(Sketcher.Constraint("Radius", 3, Q("0.999999 mm")))
sketch6.addConstraint(Sketcher.Constraint("Radius", 7, Q("0.500001 mm")))
sketch6.addConstraint(Sketcher.Constraint("DistanceX", 0, 2, 0, 1, Q("20 mm")))
sketch6.addConstraint(Sketcher.Constraint("Angle", 4, Q("45 deg")))
sketch6.addConstraint(Sketcher.Constraint("Angle", 10, Q("39.999998 deg")))
sketch6.addConstraint(Sketcher.Constraint("Radius", 5, Q("0.25 mm")))
sketch6.addConstraint(Sketcher.Constraint("Radius", 12, Q("1.35 mm")))
sketch6.addConstraint(Sketcher.Constraint("DistanceY", -1, 1, 1, 3, Q("1 mm")))
sketch6.addConstraint(Sketcher.Constraint("Radius", 11, Q("1.075 mm")))
sketch6.addConstraint(Sketcher.Constraint("DistanceX", 6, 2, 6, 1, Q("1.05 mm")))
sketch6.addConstraint(Sketcher.Constraint("DistanceY", 13, 1, 13, 2, Q("7.05 mm")))
sketch6.addConstraint(Sketcher.Constraint("DistanceX", 5, 3, -1, 1, Q("6.6 mm")))
sketch6.addConstraint(Sketcher.Constraint("DistanceY", 6, 2, 7, 1, Q("0.5 mm")))
sketch6.addConstraint(Sketcher.Constraint("DistanceY", 5, 3, -1, 1, Q("3.98 mm")))
sketch6.addConstraint(Sketcher.Constraint("DistanceX", 11, 3, -1, 1, Q("1.924998 mm")))
pad6 = body2.newObject("PartDesign::Pad", "Pad005")
pad6.Profile = sketch6
pad6.Length = 22

sketch7 = body2.newObject("Sketcher::SketchObject", "Sketch006")
sketch7.AttachmentSupport = (doc.getObject("XY_Plane001"), [""])
sketch7.MapMode = "FlatFace"
sketch7.AttachmentOffset = App.Placement(Vector(0, 0, 13), App.Rotation())
sketch7.addGeometry(Part.ArcOfCircle(Part.Circle(Vector(-3.3, -3.6, 0), Vector(0, 0, 1), 1.3), math.radians(-45), math.radians(166)), False)
sketch7.addGeometry(Part.ArcOfCircle(Part.Circle(Vector(-5.2, -3.1, 0), Vector(0, 0, 1), 0.6), math.radians(-90), math.radians(-14)), False)
sketch7.addGeometry(Part.LineSegment(Vector(-5.2, -3.7, 0), Vector(-10, -3.7, 0)), False)
sketch7.addGeometry(Part.LineSegment(Vector(-10, -3.7, 0), Vector(-10, -7, 0)), False)
sketch7.addGeometry(Part.LineSegment(Vector(-10, -7, 0), Vector(-5.3, -7, 0)), False)
sketch7.addGeometry(Part.ArcOfCircle(Part.Circle(Vector(-5.3, -6, 0), Vector(0, 0, 1), 1), math.radians(-90), math.radians(-45)), False)
sketch7.addGeometry(Part.LineSegment(Vector(-4.5, -6.7, 0), Vector(-2.4, -4.5, 0)), False)
sketch7.addConstraint(Sketcher.Constraint("Tangent", 0, 2, 1, 2))
sketch7.addConstraint(Sketcher.Constraint("Tangent", 1, 1, 2, 1))
sketch7.addConstraint(Sketcher.Constraint("Coincident", 2, 2, 3, 1))
sketch7.addConstraint(Sketcher.Constraint("Coincident", 3, 2, 4, 1))
sketch7.addConstraint(Sketcher.Constraint("Tangent", 4, 2, 5, 1))
sketch7.addConstraint(Sketcher.Constraint("Tangent", 5, 2, 6, 1))
sketch7.addConstraint(Sketcher.Constraint("Tangent", 6, 2, 0, 1))
sketch7.addConstraint(Sketcher.Constraint("Horizontal", 2))
sketch7.addConstraint(Sketcher.Constraint("Vertical", 3))
sketch7.addConstraint(Sketcher.Constraint("Horizontal", 4))
sketch7.addConstraint(Sketcher.Constraint("Radius", 5, Q("0.999999 mm")))
sketch7.addConstraint(Sketcher.Constraint("Angle", 6, Q("45.000013 deg")))
sketch7.addConstraint(Sketcher.Constraint("Radius", 0, Q("1.35 mm")))
sketch7.addConstraint(Sketcher.Constraint("DistanceY", 5, 3, -1, 1, Q("6.000001 mm")))
sketch7.addConstraint(Sketcher.Constraint("DistanceX", 2, 2, -1, 1, Q("10 mm")))
sketch7.addConstraint(Sketcher.Constraint("DistanceX", 2, 2, 2, 1, Q("4.77 mm")))
sketch7.addConstraint(Sketcher.Constraint("DistanceY", 3, 2, 3, 1, Q("3.27 mm")))
sketch7.addConstraint(Sketcher.Constraint("DistanceX", 1, 3, 0, 3, Q("1.899999 mm")))
sketch7.addConstraint(Sketcher.Constraint("Radius", 1, Q("0.604719 mm")))
pad7 = body2.newObject("PartDesign::Pad", "Pad006")
pad7.Profile = sketch7
pad7.Length = 9

sketch8 = body2.newObject("Sketcher::SketchObject", "Sketch007")
sketch8.AttachmentSupport = (doc.getObject("XY_Plane001"), [""])
sketch8.MapMode = "FlatFace"
sketch8.AttachmentOffset = App.Placement(Vector(0, 0, 13), App.Rotation())
sketch8.addGeometry(Part.Circle(Vector(-3.3, -3.6, 0), Vector(0, 0, 1), 1.4), False)
sketch8.addConstraint(Sketcher.Constraint("Diameter", 0, Q("2.7 mm")))
sketch8.addConstraint(Sketcher.Constraint("DistanceX", 0, 3, -1, 1, Q("3.33 mm")))
sketch8.addConstraint(Sketcher.Constraint("DistanceY", 0, 3, -1, 1, Q("3.58455 mm")))
pad8 = body2.newObject("PartDesign::Pad", "Pad007")
pad8.Profile = sketch8
pad8.Length = 2.5
pad8.Reversed = True
doc.recompute()

mirrored3 = body2.newObject("PartDesign::Mirrored", "Mirrored002")
mirrored3.Originals = [pad6, pad7, pad8]
mirrored3.MirrorPlane = (doc.getObject("YZ_Plane001"), [""])
body2.Tip = mirrored3
doc.recompute()

chamfer = body2.newObject("PartDesign::Chamfer", "Chamfer")
chamfer.Base = (mirrored3, edges_at(mirrored3, [(4.68, -3.585, 10.5), (-4.68, -3.585, 10.5)]))
chamfer.Size = 0.5

doc.recompute()
